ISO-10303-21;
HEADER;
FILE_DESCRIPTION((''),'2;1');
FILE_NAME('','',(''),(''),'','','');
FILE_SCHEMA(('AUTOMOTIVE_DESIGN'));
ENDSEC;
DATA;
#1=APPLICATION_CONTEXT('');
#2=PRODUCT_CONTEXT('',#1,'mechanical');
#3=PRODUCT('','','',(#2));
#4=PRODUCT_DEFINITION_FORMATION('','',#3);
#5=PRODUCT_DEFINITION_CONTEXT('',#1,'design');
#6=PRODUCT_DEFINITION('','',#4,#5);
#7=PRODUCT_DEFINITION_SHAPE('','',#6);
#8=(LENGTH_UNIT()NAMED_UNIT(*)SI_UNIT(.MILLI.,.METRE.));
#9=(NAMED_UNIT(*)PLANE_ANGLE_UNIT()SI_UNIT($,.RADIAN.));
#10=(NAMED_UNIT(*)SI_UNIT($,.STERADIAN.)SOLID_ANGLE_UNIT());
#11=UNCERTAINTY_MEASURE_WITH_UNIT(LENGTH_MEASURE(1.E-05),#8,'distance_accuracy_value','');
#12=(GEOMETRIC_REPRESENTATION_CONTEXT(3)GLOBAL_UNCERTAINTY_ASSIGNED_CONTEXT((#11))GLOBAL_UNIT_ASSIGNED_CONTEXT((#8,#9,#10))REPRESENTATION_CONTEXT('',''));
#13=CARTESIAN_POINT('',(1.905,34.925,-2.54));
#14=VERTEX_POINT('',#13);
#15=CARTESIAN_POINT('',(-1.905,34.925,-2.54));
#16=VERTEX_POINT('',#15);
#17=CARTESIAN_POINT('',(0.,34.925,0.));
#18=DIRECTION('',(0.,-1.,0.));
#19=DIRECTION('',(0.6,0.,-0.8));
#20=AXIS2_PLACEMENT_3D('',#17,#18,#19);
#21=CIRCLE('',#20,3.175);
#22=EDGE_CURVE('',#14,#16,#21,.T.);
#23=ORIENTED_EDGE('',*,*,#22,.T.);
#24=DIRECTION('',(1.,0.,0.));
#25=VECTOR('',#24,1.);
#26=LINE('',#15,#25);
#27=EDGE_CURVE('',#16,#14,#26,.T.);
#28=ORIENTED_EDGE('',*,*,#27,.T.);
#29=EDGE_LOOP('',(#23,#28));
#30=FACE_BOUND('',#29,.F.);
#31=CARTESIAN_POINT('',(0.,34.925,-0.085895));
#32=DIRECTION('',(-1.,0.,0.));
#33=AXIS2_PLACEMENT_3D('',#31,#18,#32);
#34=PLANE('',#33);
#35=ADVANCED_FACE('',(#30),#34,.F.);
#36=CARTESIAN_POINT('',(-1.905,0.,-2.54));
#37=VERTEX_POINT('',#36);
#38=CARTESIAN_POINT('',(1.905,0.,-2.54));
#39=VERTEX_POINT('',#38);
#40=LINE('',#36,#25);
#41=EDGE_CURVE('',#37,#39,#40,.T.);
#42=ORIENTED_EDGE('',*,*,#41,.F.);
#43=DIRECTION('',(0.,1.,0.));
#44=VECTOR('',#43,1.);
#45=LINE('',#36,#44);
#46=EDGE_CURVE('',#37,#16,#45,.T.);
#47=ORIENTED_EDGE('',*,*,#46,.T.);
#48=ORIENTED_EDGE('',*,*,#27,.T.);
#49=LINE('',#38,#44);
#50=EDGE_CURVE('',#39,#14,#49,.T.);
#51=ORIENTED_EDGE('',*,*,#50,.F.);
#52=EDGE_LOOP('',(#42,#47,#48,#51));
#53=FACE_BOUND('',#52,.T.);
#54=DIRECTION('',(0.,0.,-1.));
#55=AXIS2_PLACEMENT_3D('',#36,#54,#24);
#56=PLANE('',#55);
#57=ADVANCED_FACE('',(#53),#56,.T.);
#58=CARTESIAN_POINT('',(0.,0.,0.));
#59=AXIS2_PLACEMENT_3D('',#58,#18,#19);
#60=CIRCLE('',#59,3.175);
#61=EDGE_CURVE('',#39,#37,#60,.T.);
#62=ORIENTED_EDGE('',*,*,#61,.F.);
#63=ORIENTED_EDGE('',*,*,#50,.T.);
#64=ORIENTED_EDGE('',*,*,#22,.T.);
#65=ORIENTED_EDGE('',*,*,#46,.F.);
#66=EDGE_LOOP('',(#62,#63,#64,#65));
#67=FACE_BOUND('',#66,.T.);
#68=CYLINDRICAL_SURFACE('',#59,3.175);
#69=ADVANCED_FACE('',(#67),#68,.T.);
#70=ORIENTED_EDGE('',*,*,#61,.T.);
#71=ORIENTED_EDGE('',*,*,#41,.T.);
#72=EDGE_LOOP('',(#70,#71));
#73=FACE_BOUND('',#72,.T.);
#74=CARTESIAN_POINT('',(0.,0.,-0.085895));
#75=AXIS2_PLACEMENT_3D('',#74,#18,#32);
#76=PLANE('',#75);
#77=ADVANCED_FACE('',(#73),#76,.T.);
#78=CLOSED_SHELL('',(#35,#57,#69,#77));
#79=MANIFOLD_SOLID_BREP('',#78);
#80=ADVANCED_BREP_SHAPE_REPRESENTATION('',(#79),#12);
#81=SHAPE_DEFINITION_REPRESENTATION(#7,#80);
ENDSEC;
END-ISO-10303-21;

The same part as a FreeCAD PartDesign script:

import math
import FreeCAD as App
import Part
import Sketcher
Q = App.Units.Quantity

doc = App.newDocument("Part")
body = doc.addObject("PartDesign::Body", "Body")

# Sketch on XZ plane
sketch1 = body.newObject("Sketcher::SketchObject", "Sketch")
sketch1.AttachmentSupport = (doc.getObject("XZ_Plane"), [""])
sketch1.MapMode = "FlatFace"
sketch1.addGeometry([
    Part.LineSegment(App.Vector(1.905, -2.54, 0), App.Vector(-1.905, -2.54, 0)),
    Part.ArcOfCircle(Part.Circle(App.Vector(0, 0, 0), App.Vector(0, 0, 1), 3.175), math.radians(-53.130102), math.radians(233.130102)),
], False)
sketch1.addConstraint([
    Sketcher.Constraint("Coincident", 0, 1, 1, 1),
    Sketcher.Constraint("Coincident", 1, 2, 0, 2),
    Sketcher.Constraint("Horizontal", 0),
    Sketcher.Constraint("Coincident", 1, 3, -1, 1),
    Sketcher.Constraint("Radius", 1, Q("0.125 in")),
    Sketcher.Constraint("DistanceX", 0, 2, 0, 1, Q("0.15 in")),
])
pad1 = body.newObject("PartDesign::Pad", "Pad")
pad1.Profile = sketch1
pad1.Length = Q("1.375 in")
pad1.Reversed = True

doc.recompute()
